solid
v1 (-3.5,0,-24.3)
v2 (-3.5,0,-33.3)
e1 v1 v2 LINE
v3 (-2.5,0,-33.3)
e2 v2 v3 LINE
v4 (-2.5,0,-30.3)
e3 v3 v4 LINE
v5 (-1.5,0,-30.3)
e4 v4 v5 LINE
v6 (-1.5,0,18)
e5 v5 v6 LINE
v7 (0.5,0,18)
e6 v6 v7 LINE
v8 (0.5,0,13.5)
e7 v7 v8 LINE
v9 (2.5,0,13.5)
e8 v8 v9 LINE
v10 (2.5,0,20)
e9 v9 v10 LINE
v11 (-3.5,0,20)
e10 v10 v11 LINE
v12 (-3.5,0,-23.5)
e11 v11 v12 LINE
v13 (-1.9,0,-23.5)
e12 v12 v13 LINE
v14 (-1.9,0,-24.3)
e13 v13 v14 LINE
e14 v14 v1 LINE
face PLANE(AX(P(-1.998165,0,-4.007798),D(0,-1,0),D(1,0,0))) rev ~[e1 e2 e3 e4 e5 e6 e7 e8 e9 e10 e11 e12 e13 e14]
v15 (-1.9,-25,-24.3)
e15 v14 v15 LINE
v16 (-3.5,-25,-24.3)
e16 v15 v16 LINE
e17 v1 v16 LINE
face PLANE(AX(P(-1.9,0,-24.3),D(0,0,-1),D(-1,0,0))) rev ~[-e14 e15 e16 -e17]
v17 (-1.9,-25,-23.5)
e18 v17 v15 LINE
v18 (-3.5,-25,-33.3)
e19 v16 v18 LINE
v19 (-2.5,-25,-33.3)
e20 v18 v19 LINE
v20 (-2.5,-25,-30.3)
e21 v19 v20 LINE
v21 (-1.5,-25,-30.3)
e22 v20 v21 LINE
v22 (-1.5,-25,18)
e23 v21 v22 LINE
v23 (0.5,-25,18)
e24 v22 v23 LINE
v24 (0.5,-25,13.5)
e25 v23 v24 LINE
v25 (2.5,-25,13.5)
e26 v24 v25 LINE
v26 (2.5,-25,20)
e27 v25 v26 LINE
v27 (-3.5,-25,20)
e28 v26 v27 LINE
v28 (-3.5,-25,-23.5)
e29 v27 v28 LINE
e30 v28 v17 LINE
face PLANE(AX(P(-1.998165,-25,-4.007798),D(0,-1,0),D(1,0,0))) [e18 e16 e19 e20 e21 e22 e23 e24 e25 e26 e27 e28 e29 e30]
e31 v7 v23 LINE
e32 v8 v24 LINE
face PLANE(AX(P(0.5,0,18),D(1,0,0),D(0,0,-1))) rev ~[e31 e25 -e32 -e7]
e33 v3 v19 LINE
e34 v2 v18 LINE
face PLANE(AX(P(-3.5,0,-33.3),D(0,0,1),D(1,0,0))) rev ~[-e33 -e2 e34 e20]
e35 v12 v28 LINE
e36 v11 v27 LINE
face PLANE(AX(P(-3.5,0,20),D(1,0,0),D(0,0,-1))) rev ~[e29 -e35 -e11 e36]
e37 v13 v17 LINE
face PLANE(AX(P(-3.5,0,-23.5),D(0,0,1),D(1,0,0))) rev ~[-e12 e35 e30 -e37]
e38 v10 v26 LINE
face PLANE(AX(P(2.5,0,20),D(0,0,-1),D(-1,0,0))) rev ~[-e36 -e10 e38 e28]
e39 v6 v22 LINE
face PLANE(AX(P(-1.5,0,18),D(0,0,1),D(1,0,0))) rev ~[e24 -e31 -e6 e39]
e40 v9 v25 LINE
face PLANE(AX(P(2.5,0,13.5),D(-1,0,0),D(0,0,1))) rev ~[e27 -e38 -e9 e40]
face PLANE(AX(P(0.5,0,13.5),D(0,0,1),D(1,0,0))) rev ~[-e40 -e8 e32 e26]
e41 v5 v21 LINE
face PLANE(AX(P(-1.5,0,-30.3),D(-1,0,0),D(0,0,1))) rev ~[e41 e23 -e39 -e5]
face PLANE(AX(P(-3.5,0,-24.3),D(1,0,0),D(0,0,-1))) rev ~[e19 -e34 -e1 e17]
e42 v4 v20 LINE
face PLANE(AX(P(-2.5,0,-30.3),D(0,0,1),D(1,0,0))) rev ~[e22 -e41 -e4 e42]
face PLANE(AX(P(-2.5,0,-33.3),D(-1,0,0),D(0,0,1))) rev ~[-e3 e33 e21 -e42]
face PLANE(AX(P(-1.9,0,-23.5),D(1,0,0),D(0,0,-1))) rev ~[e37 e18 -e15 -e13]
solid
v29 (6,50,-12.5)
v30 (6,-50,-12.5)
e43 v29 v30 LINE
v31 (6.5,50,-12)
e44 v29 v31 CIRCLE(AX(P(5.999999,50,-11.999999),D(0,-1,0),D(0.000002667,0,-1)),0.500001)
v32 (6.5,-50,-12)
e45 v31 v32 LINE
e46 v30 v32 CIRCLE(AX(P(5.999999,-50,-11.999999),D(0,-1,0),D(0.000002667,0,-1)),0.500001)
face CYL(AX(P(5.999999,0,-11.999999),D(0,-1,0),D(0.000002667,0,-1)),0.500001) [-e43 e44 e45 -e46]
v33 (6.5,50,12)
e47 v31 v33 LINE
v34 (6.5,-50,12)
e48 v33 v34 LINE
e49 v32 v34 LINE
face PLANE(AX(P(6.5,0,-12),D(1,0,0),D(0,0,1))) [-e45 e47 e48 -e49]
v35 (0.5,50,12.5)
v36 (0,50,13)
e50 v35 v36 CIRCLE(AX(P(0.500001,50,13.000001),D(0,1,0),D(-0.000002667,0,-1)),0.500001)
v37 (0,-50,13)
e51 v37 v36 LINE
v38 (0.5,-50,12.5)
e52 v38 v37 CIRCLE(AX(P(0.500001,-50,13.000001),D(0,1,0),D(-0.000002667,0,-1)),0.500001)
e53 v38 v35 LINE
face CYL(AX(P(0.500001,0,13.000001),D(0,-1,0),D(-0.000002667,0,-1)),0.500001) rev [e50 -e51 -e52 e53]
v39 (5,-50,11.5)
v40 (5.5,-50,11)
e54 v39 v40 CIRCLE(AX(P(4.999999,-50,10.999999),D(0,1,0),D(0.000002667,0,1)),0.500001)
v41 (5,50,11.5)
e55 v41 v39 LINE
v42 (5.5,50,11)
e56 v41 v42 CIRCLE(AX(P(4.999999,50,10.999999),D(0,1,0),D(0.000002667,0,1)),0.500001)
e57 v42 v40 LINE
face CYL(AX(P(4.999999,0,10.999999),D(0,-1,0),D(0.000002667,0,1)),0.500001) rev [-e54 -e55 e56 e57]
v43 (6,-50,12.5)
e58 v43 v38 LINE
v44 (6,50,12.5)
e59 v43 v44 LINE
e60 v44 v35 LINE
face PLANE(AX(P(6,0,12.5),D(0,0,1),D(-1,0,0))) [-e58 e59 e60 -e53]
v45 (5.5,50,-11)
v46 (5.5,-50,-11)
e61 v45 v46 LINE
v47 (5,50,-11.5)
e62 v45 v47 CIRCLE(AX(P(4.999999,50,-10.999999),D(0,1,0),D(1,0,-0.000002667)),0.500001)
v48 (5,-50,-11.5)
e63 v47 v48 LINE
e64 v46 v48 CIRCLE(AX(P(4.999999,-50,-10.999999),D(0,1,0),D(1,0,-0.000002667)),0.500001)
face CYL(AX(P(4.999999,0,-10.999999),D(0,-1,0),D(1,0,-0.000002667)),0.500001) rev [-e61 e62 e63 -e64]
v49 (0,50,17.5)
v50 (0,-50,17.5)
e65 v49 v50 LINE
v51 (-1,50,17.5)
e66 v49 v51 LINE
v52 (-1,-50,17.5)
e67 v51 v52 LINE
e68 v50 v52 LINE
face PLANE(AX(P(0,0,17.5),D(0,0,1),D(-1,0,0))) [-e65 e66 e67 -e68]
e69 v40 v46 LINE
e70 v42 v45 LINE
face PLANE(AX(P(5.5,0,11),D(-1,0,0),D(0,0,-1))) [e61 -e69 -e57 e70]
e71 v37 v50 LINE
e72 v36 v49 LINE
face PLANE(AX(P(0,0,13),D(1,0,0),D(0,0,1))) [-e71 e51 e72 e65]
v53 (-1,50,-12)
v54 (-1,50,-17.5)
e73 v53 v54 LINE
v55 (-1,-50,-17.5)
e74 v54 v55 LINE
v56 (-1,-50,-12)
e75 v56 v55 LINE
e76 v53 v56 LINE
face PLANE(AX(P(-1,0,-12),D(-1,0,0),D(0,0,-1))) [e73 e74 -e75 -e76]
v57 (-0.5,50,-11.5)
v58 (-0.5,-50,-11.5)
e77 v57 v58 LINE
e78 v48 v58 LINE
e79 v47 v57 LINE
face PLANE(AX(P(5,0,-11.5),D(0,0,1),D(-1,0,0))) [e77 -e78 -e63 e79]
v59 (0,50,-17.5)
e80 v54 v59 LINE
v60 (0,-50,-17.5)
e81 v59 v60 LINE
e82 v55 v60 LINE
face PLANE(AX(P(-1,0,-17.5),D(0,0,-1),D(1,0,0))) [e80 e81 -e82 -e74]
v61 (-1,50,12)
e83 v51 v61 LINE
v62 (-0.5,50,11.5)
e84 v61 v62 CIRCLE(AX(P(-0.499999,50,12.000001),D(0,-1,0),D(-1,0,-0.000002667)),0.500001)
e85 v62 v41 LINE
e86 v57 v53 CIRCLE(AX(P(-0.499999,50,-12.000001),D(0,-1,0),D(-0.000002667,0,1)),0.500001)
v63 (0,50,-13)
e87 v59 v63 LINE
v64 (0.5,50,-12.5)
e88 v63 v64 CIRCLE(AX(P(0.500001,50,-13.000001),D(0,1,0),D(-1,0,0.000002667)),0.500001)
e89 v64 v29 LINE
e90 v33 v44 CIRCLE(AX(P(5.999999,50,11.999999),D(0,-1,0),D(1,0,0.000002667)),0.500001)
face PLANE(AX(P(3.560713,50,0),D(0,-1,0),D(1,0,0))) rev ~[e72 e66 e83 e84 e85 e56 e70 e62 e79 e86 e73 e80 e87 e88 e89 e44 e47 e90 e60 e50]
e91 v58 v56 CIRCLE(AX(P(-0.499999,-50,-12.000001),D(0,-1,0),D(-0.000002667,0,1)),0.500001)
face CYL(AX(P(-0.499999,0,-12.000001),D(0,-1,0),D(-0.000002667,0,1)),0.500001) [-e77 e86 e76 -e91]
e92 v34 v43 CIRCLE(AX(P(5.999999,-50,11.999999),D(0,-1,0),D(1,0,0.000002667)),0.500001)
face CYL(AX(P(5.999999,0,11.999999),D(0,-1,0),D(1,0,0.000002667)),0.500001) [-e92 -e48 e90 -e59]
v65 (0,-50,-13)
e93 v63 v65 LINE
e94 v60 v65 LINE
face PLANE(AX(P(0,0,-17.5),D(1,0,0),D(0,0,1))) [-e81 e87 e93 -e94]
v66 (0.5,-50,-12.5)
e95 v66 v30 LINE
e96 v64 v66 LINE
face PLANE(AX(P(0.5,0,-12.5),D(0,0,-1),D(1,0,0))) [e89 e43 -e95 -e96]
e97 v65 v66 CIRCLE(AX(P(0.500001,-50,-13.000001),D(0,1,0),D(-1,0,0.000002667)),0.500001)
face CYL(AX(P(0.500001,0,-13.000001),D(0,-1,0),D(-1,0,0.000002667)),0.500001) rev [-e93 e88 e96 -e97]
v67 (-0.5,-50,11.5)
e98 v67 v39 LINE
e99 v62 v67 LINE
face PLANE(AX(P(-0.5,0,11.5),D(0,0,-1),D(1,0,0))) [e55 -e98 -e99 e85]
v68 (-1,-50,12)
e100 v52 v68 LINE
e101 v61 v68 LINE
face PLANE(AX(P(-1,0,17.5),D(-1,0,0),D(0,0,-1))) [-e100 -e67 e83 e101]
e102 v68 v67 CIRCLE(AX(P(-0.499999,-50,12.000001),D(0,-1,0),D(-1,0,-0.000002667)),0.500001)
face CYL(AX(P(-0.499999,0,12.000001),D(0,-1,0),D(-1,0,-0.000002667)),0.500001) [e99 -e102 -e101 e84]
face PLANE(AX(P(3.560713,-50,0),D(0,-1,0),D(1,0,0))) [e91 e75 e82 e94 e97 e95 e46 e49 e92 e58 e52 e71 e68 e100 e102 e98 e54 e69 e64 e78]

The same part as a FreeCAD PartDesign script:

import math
import FreeCAD as App
import Part
import Sketcher


def add_polygon(sketch, points):
    """Adds a closed chain of lines whose ends are joined by coincident constraints."""
    first, n = sketch.GeometryCount, len(points)
    for a, b in zip(points, points[1:] + points[:1]):
        sketch.addGeometry(Part.LineSegment(App.Vector(*a, 0), App.Vector(*b, 0)), False)
    for i in range(n):
        sketch.addConstraint(Sketcher.Constraint("Coincident", first + i, 2, first + (i + 1) % n, 1))

doc = App.newDocument("Part")
body = doc.addObject("PartDesign::Body", "Body")

# Sketch on XZ plane
sketch1 = body.newObject("Sketcher::SketchObject", "Sketch")
sketch1.AttachmentSupport = (doc.getObject("XZ_Plane"), [""])
sketch1.MapMode = "FlatFace"
sketch1.addGeometry([
    Part.LineSegment(App.Vector(0, 13, 0), App.Vector(0, 17.5, 0)),  # 0
    Part.LineSegment(App.Vector(0, 17.5, 0), App.Vector(-1, 17.5, 0)),  # 1
    Part.LineSegment(App.Vector(-1, 17.5, 0), App.Vector(-1, 12, 0)),  # 2
    Part.ArcOfCircle(Part.Circle(App.Vector(-0.499999, 12.000001, 0), App.Vector(0, 0, 1), 0.500001), math.radians(-179.999847), math.radians(-90.000153)),  # 3
    Part.LineSegment(App.Vector(-0.5, 11.5, 0), App.Vector(5, 11.5, 0)),  # 4
    Part.ArcOfCircle(Part.Circle(App.Vector(4.999999, 10.999999, 0), App.Vector(0, 0, 1), 0.500001), math.radians(0.000153), math.radians(89.999847)),  # 5
    Part.LineSegment(App.Vector(5.5, 11, 0), App.Vector(5.5, -11, 0)),  # 6
    Part.ArcOfCircle(Part.Circle(App.Vector(4.999999, -10.999999, 0), App.Vector(0, 0, 1), 0.500001), math.radians(-89.999847), math.radians(-0.000153)),  # 7
    Part.LineSegment(App.Vector(5, -11.5, 0), App.Vector(-0.5, -11.5, 0)),  # 8
    Part.ArcOfCircle(Part.Circle(App.Vector(-0.499999, -12.000001, 0), App.Vector(0, 0, 1), 0.500001), math.radians(90.000153), math.radians(179.999847)),  # 9
    Part.LineSegment(App.Vector(-1, -12, 0), App.Vector(-1, -17.5, 0)),  # 10
    Part.LineSegment(App.Vector(-1, -17.5, 0), App.Vector(0, -17.5, 0)),  # 11
    Part.LineSegment(App.Vector(0, -17.5, 0), App.Vector(0, -13, 0)),  # 12
    Part.ArcOfCircle(Part.Circle(App.Vector(0.500001, -13.000001, 0), App.Vector(0, 0, 1), 0.500001), math.radians(90.000153), math.radians(179.999847)),  # 13
    Part.LineSegment(App.Vector(0.5, -12.5, 0), App.Vector(6, -12.5, 0)),  # 14
    Part.ArcOfCircle(Part.Circle(App.Vector(5.999999, -11.999999, 0), App.Vector(0, 0, 1), 0.500001), math.radians(-89.999847), math.radians(-0.000153)),  # 15
    Part.LineSegment(App.Vector(6.5, -12, 0), App.Vector(6.5, 12, 0)),  # 16
    Part.ArcOfCircle(Part.Circle(App.Vector(5.999999, 11.999999, 0), App.Vector(0, 0, 1), 0.500001), math.radians(0.000153), math.radians(89.999847)),  # 17
    Part.LineSegment(App.Vector(6, 12.5, 0), App.Vector(0.5, 12.5, 0)),  # 18
    Part.ArcOfCircle(Part.Circle(App.Vector(0.500001, 13.000001, 0), App.Vector(0, 0, 1), 0.500001), math.radians(-179.999847), math.radians(-90.000153)),  # 19
], False)
sketch1.addConstraint([
    Sketcher.Constraint("Coincident", 0, 2, 1, 1),
    Sketcher.Constraint("Coincident", 1, 2, 2, 1),
    Sketcher.Constraint("Coincident", 2, 2, 3, 1),
    Sketcher.Constraint("Coincident", 3, 2, 4, 1),
    Sketcher.Constraint("Coincident", 4, 2, 5, 2),
    Sketcher.Constraint("Coincident", 5, 1, 6, 1),
    Sketcher.Constraint("Coincident", 6, 2, 7, 2),
    Sketcher.Constraint("Coincident", 7, 1, 8, 1),
    Sketcher.Constraint("Coincident", 8, 2, 9, 1),
    Sketcher.Constraint("Coincident", 9, 2, 10, 1),
    Sketcher.Constraint("Coincident", 10, 2, 11, 1),
    Sketcher.Constraint("Coincident", 11, 2, 12, 1),
    Sketcher.Constraint("Coincident", 12, 2, 13, 2),
    Sketcher.Constraint("Coincident", 13, 1, 14, 1),
    Sketcher.Constraint("Coincident", 14, 2, 15, 1),
    Sketcher.Constraint("Coincident", 15, 2, 16, 1),
    Sketcher.Constraint("Coincident", 16, 2, 17, 1),
    Sketcher.Constraint("Coincident", 17, 2, 18, 1),
    Sketcher.Constraint("Coincident", 18, 2, 19, 2),
    Sketcher.Constraint("Coincident", 19, 1, 0, 1),
    Sketcher.Constraint("Vertical", 0),
    Sketcher.Constraint("Horizontal", 1),
    Sketcher.Constraint("Vertical", 2),
    Sketcher.Constraint("Horizontal", 4),
    Sketcher.Constraint("Vertical", 6),
    Sketcher.Constraint("Horizontal", 8),
    Sketcher.Constraint("Vertical", 10),
    Sketcher.Constraint("Horizontal", 11),
    Sketcher.Constraint("Vertical", 12),
    Sketcher.Constraint("Horizontal", 14),
    Sketcher.Constraint("Vertical", 16),
    Sketcher.Constraint("Horizontal", 18),
    Sketcher.Constraint("Equal", 3, 5),
    Sketcher.Constraint("Equal", 5, 7),
    Sketcher.Constraint("Equal", 7, 9),
    Sketcher.Constraint("Equal", 9, 13),
    Sketcher.Constraint("Equal", 13, 15),
    Sketcher.Constraint("Equal", 15, 17),
    Sketcher.Constraint("Equal", 17, 19),
    Sketcher.Constraint("Symmetric", 0, 2, 11, 2, -1, 1),
    Sketcher.Constraint("Symmetric", 3, 3, 9, 3, -1),
    Sketcher.Constraint("Symmetric", 13, 3, 19, 3, -1),
    Sketcher.Constraint("Horizontal", 17, 3, 2, 2),
    Sketcher.Constraint("Horizontal", 7, 3, 6, 2),
    Sketcher.Constraint("Horizontal", 15, 3, 9, 2),
    Sketcher.Constraint("Horizontal", 13, 3, 12, 2),
    Sketcher.Constraint("Horizontal", 9, 2, 15, 2),
    Sketcher.Constraint("Horizontal", 2, 2, 16, 2),
    Sketcher.Constraint("Vertical", 9, 3, 3, 2),
    Sketcher.Constraint("Vertical", 7, 3, 4, 2),
    Sketcher.Constraint("Vertical", 4, 2, 7, 1),
    Sketcher.Constraint("Vertical", 3, 2, 8, 2),
    Sketcher.Constraint("Vertical", 19, 3, 13, 1),
    Sketcher.Constraint("Vertical", 17, 3, 14, 2),
    Sketcher.Constraint("Vertical", 14, 2, 17, 2),
    Sketcher.Constraint("Vertical", 13, 1, 18, 2),
    Sketcher.Constraint("Equal", 8, 14),
    Sketcher.Constraint("Equal", 18, 2),
    Sketcher.Constraint("Equal", 0, 12),
    Sketcher.Constraint("Radius", 3, 0.500001),
    Sketcher.Constraint("DistanceX", 1, 2, 1, 1, 1.0),
    Sketcher.Constraint("DistanceY", 6, 2, 6, 1, 22.0),
    Sketcher.Constraint("DistanceY", 16, 1, 16, 2, 24.0),
    Sketcher.Constraint("DistanceX", 4, 1, 4, 2, 5.5),
    Sketcher.Constraint("DistanceY", -1, 1, 3, 3, 12.000001),
])
pad1 = body.newObject("PartDesign::Pad", "Pad")
pad1.Profile = sketch1
pad1.Type = "TwoLengths"
pad1.Length = 50
pad1.Length2 = 50
body2 = doc.addObject("PartDesign::Body", "Body001")

# Sketch on XZ plane
sketch2 = body2.newObject("Sketcher::SketchObject", "Sketch001")
sketch2.AttachmentSupport = (doc.getObject("XZ_Plane001"), [""])
sketch2.MapMode = "FlatFace"
add_polygon(sketch2, [(0.5, 18), (0.5, 13.5), (2.5, 13.5), (2.5, 20), (-3.5, 20), (-3.5, -23.5), (-1.9, -23.5), (-1.9, -24.3), (-3.5, -24.3), (-3.5, -33.3), (-2.5, -33.3), (-2.5, -30.3), (-1.5, -30.3), (-1.5, 18)])  # lines 0-13
sketch2.addConstraint([
    Sketcher.Constraint("Vertical", 0),
    Sketcher.Constraint("Horizontal", 1),
    Sketcher.Constraint("Vertical", 2),
    Sketcher.Constraint("Horizontal", 3),
    Sketcher.Constraint("Vertical", 4),
    Sketcher.Constraint("Horizontal", 5),
    Sketcher.Constraint("Vertical", 6),
    Sketcher.Constraint("Horizontal", 7),
    Sketcher.Constraint("Vertical", 8),
    Sketcher.Constraint("Horizontal", 9),
    Sketcher.Constraint("Vertical", 10),
    Sketcher.Constraint("Horizontal", 11),
    Sketcher.Constraint("Vertical", 12),
    Sketcher.Constraint("Horizontal", 13),
    Sketcher.Constraint("Vertical", 4, 2, 7, 2),
    Sketcher.Constraint("Equal", 9, 11),
    Sketcher.Constraint("Equal", 1, 13),
    Sketcher.Constraint("DistanceX", 1, 1, 1, 2, 2.0),
    Sketcher.Constraint("DistanceX", 3, 2, 3, 1, 6.0),
    Sketcher.Constraint("DistanceY", 8, 2, 8, 1, 9.0),
    Sketcher.Constraint("DistanceY", 10, 1, 10, 2, 3.0),
    Sketcher.Constraint("DistanceX", 5, 1, 5, 2, 1.6),
    Sketcher.Constraint("DistanceY", 0, 2, 0, 1, 4.5),
    Sketcher.Constraint("DistanceY", 2, 1, 2, 2, 6.5),
    Sketcher.Constraint("DistanceY", 4, 2, 4, 1, 43.5),
    Sketcher.Constraint("DistanceY", 6, 2, 6, 1, 0.8),
    Sketcher.Constraint("DistanceY", -1, 1, 2, 2, 20.0),
    Sketcher.Constraint("DistanceX", -1, 1, 0, 2, 0.5),
])
pad2 = body2.newObject("PartDesign::Pad", "Pad001")
pad2.Profile = sketch2
pad2.Length = 25

doc.recompute()
